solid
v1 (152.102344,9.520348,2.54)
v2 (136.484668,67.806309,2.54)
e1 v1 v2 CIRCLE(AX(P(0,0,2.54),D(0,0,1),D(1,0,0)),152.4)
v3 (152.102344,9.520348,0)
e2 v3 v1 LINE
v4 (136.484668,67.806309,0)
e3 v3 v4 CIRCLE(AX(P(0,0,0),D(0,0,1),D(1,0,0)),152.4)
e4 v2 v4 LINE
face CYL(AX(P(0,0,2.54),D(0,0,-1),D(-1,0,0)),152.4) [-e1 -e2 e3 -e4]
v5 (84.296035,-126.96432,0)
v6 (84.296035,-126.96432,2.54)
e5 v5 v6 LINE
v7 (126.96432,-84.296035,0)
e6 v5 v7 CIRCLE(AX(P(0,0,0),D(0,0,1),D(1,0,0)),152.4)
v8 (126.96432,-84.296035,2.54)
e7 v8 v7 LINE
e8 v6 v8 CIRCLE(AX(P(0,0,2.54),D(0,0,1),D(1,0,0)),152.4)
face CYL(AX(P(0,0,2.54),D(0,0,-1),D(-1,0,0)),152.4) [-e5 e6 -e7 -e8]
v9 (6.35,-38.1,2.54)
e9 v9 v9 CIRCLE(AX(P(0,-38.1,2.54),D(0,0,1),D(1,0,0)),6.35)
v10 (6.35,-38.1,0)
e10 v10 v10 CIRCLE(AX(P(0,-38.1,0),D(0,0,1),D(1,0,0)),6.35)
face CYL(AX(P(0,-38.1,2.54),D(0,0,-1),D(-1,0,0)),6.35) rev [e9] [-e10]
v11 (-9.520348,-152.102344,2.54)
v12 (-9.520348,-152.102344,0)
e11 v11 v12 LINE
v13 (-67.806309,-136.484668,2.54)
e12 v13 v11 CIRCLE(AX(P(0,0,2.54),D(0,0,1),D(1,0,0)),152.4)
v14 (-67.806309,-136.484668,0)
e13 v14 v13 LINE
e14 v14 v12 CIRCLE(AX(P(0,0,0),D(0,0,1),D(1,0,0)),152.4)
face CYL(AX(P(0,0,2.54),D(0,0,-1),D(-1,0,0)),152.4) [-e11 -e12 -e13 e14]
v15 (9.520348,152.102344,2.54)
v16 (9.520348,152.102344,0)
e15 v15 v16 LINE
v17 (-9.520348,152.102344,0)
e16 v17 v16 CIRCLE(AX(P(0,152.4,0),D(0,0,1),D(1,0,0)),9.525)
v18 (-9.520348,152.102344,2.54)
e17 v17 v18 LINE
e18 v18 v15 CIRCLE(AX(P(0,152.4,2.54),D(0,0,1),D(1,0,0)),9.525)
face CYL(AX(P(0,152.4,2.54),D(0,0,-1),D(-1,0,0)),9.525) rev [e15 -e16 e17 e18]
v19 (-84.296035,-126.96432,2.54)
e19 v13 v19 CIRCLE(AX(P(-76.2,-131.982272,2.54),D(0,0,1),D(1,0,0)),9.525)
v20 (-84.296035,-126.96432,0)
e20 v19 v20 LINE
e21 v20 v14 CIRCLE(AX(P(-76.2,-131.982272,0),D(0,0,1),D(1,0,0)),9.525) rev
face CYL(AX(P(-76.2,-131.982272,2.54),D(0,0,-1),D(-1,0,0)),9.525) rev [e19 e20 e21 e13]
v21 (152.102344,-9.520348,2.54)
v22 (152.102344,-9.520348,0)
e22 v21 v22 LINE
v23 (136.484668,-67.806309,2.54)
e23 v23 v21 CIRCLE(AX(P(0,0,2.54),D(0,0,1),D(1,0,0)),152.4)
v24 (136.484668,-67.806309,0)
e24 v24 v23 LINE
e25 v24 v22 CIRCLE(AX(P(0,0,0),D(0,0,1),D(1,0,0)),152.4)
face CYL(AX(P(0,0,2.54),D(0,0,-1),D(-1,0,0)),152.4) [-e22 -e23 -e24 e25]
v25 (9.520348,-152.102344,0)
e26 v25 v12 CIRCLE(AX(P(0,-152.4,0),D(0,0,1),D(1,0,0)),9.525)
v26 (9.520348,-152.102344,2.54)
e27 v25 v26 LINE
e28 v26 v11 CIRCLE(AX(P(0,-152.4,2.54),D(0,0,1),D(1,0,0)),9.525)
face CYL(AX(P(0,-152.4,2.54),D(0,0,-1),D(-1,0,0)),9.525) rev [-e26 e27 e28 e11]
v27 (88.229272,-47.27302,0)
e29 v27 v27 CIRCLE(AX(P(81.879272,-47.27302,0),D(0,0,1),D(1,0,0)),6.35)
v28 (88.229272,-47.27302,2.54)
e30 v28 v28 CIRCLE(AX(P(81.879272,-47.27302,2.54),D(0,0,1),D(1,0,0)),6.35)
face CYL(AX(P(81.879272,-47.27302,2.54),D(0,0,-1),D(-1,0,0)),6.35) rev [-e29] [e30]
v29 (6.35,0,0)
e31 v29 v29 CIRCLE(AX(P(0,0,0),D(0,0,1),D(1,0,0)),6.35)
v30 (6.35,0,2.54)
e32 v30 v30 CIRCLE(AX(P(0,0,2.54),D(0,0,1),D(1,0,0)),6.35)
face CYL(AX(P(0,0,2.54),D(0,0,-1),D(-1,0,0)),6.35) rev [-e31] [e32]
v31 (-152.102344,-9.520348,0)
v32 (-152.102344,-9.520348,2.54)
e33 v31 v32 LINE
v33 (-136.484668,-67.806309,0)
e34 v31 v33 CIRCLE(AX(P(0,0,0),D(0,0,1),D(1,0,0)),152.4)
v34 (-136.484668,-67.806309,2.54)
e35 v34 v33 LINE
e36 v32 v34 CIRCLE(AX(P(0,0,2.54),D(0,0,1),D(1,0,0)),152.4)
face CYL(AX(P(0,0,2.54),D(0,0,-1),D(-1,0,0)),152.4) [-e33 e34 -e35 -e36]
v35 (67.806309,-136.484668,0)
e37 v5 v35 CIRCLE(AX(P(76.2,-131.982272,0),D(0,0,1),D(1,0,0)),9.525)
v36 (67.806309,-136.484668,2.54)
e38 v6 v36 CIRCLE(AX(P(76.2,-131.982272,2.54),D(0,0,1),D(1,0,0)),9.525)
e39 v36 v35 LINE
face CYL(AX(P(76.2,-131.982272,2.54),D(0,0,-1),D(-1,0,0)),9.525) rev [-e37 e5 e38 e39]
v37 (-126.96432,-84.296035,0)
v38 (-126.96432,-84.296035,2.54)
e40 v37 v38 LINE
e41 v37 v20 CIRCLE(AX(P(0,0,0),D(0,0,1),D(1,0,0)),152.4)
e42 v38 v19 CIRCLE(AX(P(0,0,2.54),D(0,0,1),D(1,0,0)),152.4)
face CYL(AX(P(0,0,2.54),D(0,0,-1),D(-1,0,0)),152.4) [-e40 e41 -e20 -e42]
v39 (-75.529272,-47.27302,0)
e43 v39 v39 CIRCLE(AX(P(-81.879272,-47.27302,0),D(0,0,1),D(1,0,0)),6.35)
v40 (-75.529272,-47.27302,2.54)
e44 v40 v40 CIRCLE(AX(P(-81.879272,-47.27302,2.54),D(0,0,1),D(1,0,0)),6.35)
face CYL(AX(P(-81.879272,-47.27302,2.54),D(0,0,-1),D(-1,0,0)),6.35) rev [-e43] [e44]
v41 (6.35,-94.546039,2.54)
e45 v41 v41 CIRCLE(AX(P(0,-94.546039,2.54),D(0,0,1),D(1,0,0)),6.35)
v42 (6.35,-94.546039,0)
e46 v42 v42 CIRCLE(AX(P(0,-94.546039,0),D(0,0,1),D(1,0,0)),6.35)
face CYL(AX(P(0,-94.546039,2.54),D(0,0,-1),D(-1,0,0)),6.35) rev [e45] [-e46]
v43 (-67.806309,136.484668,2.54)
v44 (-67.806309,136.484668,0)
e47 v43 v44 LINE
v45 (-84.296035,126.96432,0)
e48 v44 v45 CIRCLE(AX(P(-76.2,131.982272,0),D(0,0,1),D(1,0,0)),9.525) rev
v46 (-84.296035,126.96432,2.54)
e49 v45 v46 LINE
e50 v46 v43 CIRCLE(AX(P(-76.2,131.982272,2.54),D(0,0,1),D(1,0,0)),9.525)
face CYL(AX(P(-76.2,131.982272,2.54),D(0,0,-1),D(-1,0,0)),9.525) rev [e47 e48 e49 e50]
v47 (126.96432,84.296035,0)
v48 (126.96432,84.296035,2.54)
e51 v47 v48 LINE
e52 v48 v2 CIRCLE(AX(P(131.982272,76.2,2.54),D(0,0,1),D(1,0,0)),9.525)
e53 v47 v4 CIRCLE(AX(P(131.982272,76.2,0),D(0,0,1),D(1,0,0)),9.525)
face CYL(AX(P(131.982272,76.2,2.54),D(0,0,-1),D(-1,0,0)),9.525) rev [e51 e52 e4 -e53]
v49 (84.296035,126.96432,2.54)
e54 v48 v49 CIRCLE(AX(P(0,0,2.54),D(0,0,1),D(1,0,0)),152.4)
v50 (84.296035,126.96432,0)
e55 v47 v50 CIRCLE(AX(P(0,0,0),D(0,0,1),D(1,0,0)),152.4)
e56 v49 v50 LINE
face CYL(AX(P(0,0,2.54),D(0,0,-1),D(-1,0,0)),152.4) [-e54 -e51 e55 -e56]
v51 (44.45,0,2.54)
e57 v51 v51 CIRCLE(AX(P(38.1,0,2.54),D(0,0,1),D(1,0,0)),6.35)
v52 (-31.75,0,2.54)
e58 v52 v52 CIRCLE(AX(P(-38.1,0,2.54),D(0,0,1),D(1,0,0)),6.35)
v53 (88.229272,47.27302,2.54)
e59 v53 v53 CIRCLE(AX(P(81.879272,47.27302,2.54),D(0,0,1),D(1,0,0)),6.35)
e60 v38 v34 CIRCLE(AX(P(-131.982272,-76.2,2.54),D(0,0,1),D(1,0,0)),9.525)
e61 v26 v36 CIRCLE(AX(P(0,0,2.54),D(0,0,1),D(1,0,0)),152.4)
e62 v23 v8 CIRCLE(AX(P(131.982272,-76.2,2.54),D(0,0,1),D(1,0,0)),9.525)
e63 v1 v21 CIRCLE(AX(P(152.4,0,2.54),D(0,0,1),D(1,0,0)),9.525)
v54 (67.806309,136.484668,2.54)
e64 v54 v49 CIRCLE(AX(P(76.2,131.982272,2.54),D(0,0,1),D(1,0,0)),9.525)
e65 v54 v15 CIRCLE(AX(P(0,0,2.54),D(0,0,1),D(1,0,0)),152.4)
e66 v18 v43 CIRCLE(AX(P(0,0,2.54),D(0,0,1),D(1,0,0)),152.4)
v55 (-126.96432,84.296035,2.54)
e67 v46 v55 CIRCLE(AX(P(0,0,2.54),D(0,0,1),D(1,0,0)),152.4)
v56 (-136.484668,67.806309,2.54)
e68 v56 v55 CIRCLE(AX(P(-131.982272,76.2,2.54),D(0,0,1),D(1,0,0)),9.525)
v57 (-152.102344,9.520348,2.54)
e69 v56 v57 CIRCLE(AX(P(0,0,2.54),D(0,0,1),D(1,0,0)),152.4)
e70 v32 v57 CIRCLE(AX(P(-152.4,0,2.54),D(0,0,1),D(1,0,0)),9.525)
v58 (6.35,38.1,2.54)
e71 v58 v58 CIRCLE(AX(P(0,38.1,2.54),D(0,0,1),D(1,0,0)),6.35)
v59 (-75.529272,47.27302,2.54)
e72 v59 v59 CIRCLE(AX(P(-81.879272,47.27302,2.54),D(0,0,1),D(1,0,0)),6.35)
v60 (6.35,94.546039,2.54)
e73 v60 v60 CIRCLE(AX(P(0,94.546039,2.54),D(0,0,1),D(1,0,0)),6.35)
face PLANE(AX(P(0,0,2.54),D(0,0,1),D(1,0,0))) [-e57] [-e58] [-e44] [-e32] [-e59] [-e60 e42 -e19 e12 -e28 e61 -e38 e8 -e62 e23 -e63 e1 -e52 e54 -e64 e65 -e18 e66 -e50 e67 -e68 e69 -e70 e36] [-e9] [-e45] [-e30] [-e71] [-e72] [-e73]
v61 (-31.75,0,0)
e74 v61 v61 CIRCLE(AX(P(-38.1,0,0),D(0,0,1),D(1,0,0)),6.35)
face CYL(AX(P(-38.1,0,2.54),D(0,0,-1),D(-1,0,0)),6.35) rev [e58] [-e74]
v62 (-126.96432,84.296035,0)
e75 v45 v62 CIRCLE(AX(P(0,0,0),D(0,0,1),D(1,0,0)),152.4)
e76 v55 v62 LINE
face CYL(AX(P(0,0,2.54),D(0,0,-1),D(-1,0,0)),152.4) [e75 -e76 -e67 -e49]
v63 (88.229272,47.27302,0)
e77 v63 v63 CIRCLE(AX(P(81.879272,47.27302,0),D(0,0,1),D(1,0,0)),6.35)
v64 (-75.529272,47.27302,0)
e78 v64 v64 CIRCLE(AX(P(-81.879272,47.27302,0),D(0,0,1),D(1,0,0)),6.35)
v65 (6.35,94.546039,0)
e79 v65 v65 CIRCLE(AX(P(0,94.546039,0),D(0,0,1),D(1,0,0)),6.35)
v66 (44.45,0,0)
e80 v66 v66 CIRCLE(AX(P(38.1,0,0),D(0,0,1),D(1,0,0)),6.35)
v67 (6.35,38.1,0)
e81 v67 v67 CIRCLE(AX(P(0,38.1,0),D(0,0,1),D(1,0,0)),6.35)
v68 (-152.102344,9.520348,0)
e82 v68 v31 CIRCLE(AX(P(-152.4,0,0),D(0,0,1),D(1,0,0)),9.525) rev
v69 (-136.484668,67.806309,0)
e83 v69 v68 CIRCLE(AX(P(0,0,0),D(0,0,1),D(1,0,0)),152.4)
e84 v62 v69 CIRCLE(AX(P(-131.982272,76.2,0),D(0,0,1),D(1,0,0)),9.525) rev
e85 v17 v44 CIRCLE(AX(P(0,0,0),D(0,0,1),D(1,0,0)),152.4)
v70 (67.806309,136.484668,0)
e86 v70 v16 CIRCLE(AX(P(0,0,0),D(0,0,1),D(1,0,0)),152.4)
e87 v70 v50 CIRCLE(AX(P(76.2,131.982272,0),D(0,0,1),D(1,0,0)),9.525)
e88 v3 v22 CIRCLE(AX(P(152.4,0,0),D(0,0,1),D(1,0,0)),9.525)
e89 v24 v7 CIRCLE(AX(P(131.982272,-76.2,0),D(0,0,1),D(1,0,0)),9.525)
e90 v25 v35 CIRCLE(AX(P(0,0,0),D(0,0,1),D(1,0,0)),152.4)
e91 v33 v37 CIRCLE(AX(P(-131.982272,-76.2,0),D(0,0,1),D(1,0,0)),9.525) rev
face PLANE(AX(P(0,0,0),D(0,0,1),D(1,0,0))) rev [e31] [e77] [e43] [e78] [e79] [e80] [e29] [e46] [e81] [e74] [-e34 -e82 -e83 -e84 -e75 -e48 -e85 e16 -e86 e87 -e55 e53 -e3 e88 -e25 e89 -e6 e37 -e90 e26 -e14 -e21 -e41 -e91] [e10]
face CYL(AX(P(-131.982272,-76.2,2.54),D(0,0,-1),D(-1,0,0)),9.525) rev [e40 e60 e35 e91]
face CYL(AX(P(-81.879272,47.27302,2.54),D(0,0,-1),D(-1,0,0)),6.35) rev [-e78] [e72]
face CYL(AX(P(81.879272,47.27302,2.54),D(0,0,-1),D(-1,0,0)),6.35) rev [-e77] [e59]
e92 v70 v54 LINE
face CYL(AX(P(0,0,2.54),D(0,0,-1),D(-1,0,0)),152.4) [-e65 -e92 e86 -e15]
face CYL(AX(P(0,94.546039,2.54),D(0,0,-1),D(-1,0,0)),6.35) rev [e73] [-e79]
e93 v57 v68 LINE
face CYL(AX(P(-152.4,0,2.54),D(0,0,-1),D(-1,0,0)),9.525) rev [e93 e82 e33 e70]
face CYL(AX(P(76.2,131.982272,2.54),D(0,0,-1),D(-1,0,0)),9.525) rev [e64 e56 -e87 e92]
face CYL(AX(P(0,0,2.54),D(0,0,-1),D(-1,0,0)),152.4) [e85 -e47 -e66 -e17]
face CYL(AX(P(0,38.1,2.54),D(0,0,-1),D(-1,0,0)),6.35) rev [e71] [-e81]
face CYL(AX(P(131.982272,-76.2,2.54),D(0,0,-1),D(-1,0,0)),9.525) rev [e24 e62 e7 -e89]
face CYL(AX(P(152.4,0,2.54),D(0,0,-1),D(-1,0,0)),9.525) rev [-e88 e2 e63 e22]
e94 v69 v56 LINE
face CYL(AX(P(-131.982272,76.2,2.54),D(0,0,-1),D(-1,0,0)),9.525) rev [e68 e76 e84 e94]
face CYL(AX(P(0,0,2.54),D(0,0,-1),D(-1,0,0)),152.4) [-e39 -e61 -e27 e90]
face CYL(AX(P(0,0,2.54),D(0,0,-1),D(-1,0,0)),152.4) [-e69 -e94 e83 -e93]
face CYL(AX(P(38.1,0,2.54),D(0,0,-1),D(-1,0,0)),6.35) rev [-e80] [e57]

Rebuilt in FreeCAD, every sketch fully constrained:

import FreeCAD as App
import Part
import Sketcher
from FreeCAD import Vector
Q = App.Units.Quantity

doc = App.newDocument("Part")
body = doc.addObject("PartDesign::Body", "Body")

# Sketch on XY plane
sketch1 = doc.addObject("Sketcher::SketchObject", "Sketch")
body.addObject(sketch1)
sketch1.AttachmentSupport = (doc.XY_Plane, [""])
sketch1.MapMode = "FlatFace"
sketch1.addGeometry(Part.Circle(Vector(0, 0, 0), Vector(0, 0, 1), 152), False)
sketch1.addConstraint([
    Sketcher.Constraint("Coincident", 0, 3, -1, 1),
    Sketcher.Constraint("Diameter", 0, Q("12 in")),
])
pad1 = doc.addObject("PartDesign::Pad", "Pad")
body.addObject(pad1)
pad1.Profile = sketch1
pad1.Length = Q("0.1 in")

# Sketch on XY plane
sketch2 = doc.addObject("Sketcher::SketchObject", "Sketch001")
body.addObject(sketch2)
sketch2.AttachmentSupport = (doc.XY_Plane, [""])
sketch2.MapMode = "FlatFace"
sketch2.addGeometry([
    Part.Circle(Vector(152, 0, 0), Vector(0, 0, 1), 10),  # 0
    Part.Circle(Vector(132, -76, 0), Vector(0, 0, 1), 10),  # 1
    Part.Circle(Vector(76, -132, 0), Vector(0, 0, 1), 10),  # 2
    Part.Circle(Vector(0, -152, 0), Vector(0, 0, 1), 10),  # 3
    Part.Circle(Vector(-76, -132, 0), Vector(0, 0, 1), 10),  # 4
    Part.Circle(Vector(-132, -76, 0), Vector(0, 0, 1), 10),  # 5
    Part.Circle(Vector(-152, 0, 0), Vector(0, 0, 1), 10),  # 6
    Part.Circle(Vector(-132, 76, 0), Vector(0, 0, 1), 10),  # 7
    Part.Circle(Vector(-76, 132, 0), Vector(0, 0, 1), 10),  # 8
    Part.Circle(Vector(0, 152, 0), Vector(0, 0, 1), 10),  # 9
    Part.Circle(Vector(76, 132, 0), Vector(0, 0, 1), 10),  # 10
    Part.Circle(Vector(132, 76, 0), Vector(0, 0, 1), 10),  # 11
    Part.Circle(Vector(38, 0, 0), Vector(0, 0, 1), 6),  # 12
    Part.Circle(Vector(0, -38, 0), Vector(0, 0, 1), 6),  # 13
    Part.Circle(Vector(-38, 0, 0), Vector(0, 0, 1), 6),  # 14
    Part.Circle(Vector(0, 38, 0), Vector(0, 0, 1), 6),  # 15
    Part.Circle(Vector(82, -47, 0), Vector(0, 0, 1), 6),  # 16
    Part.Circle(Vector(0, -95, 0), Vector(0, 0, 1), 6),  # 17
    Part.Circle(Vector(-82, -47, 0), Vector(0, 0, 1), 6),  # 18
    Part.Circle(Vector(-82, 47, 0), Vector(0, 0, 1), 6),  # 19
    Part.Circle(Vector(0, 95, 0), Vector(0, 0, 1), 6),  # 20
    Part.Circle(Vector(82, 47, 0), Vector(0, 0, 1), 6),  # 21
], False)
sketch2.addConstraint([
    Sketcher.Constraint("Equal", 0, 1),
    Sketcher.Constraint("Equal", 1, 2),
    Sketcher.Constraint("Equal", 2, 3),
    Sketcher.Constraint("Equal", 3, 4),
    Sketcher.Constraint("Equal", 4, 5),
    Sketcher.Constraint("Equal", 5, 6),
    Sketcher.Constraint("Equal", 6, 7),
    Sketcher.Constraint("Equal", 7, 8),
    Sketcher.Constraint("Equal", 8, 9),
    Sketcher.Constraint("Equal", 9, 10),
    Sketcher.Constraint("Equal", 10, 11),
    Sketcher.Constraint("Equal", 12, 13),
    Sketcher.Constraint("Equal", 13, 14),
    Sketcher.Constraint("Equal", 14, 15),
    Sketcher.Constraint("Equal", 15, 16),
    Sketcher.Constraint("Equal", 16, 17),
    Sketcher.Constraint("Equal", 17, 18),
    Sketcher.Constraint("Equal", 18, 19),
    Sketcher.Constraint("Equal", 19, 20),
    Sketcher.Constraint("Equal", 20, 21),
    Sketcher.Constraint("Symmetric", 0, 3, 6, 3, -1, 1),
    Sketcher.Constraint("Symmetric", 1, 3, 7, 3, -1, 1),
    Sketcher.Constraint("Symmetric", 2, 3, 8, 3, -1, 1),
    Sketcher.Constraint("Symmetric", 3, 3, 9, 3, -1, 1),
    Sketcher.Constraint("Symmetric", 4, 3, 10, 3, -1, 1),
    Sketcher.Constraint("Symmetric", 5, 3, 11, 3, -1, 1),
    Sketcher.Constraint("Symmetric", 12, 3, 14, 3, -1, 1),
    Sketcher.Constraint("Symmetric", 13, 3, 15, 3, -1, 1),
    Sketcher.Constraint("Symmetric", 16, 3, 19, 3, -1, 1),
    Sketcher.Constraint("Symmetric", 17, 3, 20, 3, -1, 1),
    Sketcher.Constraint("Symmetric", 18, 3, 21, 3, -1, 1),
    Sketcher.Constraint("Symmetric", 2, 3, 4, 3, -2),
    Sketcher.Constraint("Symmetric", 1, 3, 5, 3, -2),
    Sketcher.Constraint("Symmetric", 16, 3, 18, 3, -2),
    Sketcher.Constraint("PointOnObject", 0, 3, -1),
    Sketcher.Constraint("PointOnObject", 3, 3, -2),
    Sketcher.Constraint("PointOnObject", 12, 3, -1),
    Sketcher.Constraint("PointOnObject", 13, 3, -2),
    Sketcher.Constraint("PointOnObject", 17, 3, -2),
    Sketcher.Constraint("Diameter", 12, Q("0.5 in")),
    Sketcher.Constraint("Diameter", 0, Q("0.75 in")),
    Sketcher.Constraint("DistanceX", -1, 1, 0, 3, Q("6 in")),
    Sketcher.Constraint("DistanceY", 1, 3, -1, 1, Q("3 in")),
    Sketcher.Constraint("DistanceX", -1, 1, 2, 3, Q("3 in")),
    Sketcher.Constraint("DistanceY", 3, 3, -1, 1, Q("6 in")),
    Sketcher.Constraint("DistanceX", 14, 3, 12, 3, Q("3 in")),
    Sketcher.Constraint("DistanceY", 13, 3, 15, 3, Q("3 in")),
    Sketcher.Constraint("DistanceX", 16, 3, 1, 3, 50.103),
    Sketcher.Constraint("DistanceX", -1, 1, 1, 3, 131.982272),
    Sketcher.Constraint("DistanceY", 2, 3, -1, 1, 131.982272),
    Sketcher.Constraint("DistanceY", 16, 3, -1, 1, 47.27302),
    Sketcher.Constraint("DistanceY", 17, 3, -1, 1, 94.546039),
])
pocket1 = doc.addObject("PartDesign::Pocket", "Pocket")
body.addObject(pocket1)
pocket1.Profile = sketch2
pocket1.Type = "ThroughAll"
pocket1.Reversed = True

# Sketch on XY plane
sketch3 = doc.addObject("Sketcher::SketchObject", "Sketch002")
body.addObject(sketch3)
sketch3.AttachmentSupport = (doc.XY_Plane, [""])
sketch3.MapMode = "FlatFace"
sketch3.addGeometry(Part.Circle(Vector(0, 0, 0), Vector(0, 0, 1), 6), False)
sketch3.addConstraint([
    Sketcher.Constraint("Coincident", 0, 3, -1, 1),
    Sketcher.Constraint("Diameter", 0, Q("0.5 in")),
])
pocket2 = doc.addObject("PartDesign::Pocket", "Pocket001")
body.addObject(pocket2)
pocket2.Profile = sketch3
pocket2.Length = Q("0.1 in")
pocket2.Reversed = True

doc.recompute()
